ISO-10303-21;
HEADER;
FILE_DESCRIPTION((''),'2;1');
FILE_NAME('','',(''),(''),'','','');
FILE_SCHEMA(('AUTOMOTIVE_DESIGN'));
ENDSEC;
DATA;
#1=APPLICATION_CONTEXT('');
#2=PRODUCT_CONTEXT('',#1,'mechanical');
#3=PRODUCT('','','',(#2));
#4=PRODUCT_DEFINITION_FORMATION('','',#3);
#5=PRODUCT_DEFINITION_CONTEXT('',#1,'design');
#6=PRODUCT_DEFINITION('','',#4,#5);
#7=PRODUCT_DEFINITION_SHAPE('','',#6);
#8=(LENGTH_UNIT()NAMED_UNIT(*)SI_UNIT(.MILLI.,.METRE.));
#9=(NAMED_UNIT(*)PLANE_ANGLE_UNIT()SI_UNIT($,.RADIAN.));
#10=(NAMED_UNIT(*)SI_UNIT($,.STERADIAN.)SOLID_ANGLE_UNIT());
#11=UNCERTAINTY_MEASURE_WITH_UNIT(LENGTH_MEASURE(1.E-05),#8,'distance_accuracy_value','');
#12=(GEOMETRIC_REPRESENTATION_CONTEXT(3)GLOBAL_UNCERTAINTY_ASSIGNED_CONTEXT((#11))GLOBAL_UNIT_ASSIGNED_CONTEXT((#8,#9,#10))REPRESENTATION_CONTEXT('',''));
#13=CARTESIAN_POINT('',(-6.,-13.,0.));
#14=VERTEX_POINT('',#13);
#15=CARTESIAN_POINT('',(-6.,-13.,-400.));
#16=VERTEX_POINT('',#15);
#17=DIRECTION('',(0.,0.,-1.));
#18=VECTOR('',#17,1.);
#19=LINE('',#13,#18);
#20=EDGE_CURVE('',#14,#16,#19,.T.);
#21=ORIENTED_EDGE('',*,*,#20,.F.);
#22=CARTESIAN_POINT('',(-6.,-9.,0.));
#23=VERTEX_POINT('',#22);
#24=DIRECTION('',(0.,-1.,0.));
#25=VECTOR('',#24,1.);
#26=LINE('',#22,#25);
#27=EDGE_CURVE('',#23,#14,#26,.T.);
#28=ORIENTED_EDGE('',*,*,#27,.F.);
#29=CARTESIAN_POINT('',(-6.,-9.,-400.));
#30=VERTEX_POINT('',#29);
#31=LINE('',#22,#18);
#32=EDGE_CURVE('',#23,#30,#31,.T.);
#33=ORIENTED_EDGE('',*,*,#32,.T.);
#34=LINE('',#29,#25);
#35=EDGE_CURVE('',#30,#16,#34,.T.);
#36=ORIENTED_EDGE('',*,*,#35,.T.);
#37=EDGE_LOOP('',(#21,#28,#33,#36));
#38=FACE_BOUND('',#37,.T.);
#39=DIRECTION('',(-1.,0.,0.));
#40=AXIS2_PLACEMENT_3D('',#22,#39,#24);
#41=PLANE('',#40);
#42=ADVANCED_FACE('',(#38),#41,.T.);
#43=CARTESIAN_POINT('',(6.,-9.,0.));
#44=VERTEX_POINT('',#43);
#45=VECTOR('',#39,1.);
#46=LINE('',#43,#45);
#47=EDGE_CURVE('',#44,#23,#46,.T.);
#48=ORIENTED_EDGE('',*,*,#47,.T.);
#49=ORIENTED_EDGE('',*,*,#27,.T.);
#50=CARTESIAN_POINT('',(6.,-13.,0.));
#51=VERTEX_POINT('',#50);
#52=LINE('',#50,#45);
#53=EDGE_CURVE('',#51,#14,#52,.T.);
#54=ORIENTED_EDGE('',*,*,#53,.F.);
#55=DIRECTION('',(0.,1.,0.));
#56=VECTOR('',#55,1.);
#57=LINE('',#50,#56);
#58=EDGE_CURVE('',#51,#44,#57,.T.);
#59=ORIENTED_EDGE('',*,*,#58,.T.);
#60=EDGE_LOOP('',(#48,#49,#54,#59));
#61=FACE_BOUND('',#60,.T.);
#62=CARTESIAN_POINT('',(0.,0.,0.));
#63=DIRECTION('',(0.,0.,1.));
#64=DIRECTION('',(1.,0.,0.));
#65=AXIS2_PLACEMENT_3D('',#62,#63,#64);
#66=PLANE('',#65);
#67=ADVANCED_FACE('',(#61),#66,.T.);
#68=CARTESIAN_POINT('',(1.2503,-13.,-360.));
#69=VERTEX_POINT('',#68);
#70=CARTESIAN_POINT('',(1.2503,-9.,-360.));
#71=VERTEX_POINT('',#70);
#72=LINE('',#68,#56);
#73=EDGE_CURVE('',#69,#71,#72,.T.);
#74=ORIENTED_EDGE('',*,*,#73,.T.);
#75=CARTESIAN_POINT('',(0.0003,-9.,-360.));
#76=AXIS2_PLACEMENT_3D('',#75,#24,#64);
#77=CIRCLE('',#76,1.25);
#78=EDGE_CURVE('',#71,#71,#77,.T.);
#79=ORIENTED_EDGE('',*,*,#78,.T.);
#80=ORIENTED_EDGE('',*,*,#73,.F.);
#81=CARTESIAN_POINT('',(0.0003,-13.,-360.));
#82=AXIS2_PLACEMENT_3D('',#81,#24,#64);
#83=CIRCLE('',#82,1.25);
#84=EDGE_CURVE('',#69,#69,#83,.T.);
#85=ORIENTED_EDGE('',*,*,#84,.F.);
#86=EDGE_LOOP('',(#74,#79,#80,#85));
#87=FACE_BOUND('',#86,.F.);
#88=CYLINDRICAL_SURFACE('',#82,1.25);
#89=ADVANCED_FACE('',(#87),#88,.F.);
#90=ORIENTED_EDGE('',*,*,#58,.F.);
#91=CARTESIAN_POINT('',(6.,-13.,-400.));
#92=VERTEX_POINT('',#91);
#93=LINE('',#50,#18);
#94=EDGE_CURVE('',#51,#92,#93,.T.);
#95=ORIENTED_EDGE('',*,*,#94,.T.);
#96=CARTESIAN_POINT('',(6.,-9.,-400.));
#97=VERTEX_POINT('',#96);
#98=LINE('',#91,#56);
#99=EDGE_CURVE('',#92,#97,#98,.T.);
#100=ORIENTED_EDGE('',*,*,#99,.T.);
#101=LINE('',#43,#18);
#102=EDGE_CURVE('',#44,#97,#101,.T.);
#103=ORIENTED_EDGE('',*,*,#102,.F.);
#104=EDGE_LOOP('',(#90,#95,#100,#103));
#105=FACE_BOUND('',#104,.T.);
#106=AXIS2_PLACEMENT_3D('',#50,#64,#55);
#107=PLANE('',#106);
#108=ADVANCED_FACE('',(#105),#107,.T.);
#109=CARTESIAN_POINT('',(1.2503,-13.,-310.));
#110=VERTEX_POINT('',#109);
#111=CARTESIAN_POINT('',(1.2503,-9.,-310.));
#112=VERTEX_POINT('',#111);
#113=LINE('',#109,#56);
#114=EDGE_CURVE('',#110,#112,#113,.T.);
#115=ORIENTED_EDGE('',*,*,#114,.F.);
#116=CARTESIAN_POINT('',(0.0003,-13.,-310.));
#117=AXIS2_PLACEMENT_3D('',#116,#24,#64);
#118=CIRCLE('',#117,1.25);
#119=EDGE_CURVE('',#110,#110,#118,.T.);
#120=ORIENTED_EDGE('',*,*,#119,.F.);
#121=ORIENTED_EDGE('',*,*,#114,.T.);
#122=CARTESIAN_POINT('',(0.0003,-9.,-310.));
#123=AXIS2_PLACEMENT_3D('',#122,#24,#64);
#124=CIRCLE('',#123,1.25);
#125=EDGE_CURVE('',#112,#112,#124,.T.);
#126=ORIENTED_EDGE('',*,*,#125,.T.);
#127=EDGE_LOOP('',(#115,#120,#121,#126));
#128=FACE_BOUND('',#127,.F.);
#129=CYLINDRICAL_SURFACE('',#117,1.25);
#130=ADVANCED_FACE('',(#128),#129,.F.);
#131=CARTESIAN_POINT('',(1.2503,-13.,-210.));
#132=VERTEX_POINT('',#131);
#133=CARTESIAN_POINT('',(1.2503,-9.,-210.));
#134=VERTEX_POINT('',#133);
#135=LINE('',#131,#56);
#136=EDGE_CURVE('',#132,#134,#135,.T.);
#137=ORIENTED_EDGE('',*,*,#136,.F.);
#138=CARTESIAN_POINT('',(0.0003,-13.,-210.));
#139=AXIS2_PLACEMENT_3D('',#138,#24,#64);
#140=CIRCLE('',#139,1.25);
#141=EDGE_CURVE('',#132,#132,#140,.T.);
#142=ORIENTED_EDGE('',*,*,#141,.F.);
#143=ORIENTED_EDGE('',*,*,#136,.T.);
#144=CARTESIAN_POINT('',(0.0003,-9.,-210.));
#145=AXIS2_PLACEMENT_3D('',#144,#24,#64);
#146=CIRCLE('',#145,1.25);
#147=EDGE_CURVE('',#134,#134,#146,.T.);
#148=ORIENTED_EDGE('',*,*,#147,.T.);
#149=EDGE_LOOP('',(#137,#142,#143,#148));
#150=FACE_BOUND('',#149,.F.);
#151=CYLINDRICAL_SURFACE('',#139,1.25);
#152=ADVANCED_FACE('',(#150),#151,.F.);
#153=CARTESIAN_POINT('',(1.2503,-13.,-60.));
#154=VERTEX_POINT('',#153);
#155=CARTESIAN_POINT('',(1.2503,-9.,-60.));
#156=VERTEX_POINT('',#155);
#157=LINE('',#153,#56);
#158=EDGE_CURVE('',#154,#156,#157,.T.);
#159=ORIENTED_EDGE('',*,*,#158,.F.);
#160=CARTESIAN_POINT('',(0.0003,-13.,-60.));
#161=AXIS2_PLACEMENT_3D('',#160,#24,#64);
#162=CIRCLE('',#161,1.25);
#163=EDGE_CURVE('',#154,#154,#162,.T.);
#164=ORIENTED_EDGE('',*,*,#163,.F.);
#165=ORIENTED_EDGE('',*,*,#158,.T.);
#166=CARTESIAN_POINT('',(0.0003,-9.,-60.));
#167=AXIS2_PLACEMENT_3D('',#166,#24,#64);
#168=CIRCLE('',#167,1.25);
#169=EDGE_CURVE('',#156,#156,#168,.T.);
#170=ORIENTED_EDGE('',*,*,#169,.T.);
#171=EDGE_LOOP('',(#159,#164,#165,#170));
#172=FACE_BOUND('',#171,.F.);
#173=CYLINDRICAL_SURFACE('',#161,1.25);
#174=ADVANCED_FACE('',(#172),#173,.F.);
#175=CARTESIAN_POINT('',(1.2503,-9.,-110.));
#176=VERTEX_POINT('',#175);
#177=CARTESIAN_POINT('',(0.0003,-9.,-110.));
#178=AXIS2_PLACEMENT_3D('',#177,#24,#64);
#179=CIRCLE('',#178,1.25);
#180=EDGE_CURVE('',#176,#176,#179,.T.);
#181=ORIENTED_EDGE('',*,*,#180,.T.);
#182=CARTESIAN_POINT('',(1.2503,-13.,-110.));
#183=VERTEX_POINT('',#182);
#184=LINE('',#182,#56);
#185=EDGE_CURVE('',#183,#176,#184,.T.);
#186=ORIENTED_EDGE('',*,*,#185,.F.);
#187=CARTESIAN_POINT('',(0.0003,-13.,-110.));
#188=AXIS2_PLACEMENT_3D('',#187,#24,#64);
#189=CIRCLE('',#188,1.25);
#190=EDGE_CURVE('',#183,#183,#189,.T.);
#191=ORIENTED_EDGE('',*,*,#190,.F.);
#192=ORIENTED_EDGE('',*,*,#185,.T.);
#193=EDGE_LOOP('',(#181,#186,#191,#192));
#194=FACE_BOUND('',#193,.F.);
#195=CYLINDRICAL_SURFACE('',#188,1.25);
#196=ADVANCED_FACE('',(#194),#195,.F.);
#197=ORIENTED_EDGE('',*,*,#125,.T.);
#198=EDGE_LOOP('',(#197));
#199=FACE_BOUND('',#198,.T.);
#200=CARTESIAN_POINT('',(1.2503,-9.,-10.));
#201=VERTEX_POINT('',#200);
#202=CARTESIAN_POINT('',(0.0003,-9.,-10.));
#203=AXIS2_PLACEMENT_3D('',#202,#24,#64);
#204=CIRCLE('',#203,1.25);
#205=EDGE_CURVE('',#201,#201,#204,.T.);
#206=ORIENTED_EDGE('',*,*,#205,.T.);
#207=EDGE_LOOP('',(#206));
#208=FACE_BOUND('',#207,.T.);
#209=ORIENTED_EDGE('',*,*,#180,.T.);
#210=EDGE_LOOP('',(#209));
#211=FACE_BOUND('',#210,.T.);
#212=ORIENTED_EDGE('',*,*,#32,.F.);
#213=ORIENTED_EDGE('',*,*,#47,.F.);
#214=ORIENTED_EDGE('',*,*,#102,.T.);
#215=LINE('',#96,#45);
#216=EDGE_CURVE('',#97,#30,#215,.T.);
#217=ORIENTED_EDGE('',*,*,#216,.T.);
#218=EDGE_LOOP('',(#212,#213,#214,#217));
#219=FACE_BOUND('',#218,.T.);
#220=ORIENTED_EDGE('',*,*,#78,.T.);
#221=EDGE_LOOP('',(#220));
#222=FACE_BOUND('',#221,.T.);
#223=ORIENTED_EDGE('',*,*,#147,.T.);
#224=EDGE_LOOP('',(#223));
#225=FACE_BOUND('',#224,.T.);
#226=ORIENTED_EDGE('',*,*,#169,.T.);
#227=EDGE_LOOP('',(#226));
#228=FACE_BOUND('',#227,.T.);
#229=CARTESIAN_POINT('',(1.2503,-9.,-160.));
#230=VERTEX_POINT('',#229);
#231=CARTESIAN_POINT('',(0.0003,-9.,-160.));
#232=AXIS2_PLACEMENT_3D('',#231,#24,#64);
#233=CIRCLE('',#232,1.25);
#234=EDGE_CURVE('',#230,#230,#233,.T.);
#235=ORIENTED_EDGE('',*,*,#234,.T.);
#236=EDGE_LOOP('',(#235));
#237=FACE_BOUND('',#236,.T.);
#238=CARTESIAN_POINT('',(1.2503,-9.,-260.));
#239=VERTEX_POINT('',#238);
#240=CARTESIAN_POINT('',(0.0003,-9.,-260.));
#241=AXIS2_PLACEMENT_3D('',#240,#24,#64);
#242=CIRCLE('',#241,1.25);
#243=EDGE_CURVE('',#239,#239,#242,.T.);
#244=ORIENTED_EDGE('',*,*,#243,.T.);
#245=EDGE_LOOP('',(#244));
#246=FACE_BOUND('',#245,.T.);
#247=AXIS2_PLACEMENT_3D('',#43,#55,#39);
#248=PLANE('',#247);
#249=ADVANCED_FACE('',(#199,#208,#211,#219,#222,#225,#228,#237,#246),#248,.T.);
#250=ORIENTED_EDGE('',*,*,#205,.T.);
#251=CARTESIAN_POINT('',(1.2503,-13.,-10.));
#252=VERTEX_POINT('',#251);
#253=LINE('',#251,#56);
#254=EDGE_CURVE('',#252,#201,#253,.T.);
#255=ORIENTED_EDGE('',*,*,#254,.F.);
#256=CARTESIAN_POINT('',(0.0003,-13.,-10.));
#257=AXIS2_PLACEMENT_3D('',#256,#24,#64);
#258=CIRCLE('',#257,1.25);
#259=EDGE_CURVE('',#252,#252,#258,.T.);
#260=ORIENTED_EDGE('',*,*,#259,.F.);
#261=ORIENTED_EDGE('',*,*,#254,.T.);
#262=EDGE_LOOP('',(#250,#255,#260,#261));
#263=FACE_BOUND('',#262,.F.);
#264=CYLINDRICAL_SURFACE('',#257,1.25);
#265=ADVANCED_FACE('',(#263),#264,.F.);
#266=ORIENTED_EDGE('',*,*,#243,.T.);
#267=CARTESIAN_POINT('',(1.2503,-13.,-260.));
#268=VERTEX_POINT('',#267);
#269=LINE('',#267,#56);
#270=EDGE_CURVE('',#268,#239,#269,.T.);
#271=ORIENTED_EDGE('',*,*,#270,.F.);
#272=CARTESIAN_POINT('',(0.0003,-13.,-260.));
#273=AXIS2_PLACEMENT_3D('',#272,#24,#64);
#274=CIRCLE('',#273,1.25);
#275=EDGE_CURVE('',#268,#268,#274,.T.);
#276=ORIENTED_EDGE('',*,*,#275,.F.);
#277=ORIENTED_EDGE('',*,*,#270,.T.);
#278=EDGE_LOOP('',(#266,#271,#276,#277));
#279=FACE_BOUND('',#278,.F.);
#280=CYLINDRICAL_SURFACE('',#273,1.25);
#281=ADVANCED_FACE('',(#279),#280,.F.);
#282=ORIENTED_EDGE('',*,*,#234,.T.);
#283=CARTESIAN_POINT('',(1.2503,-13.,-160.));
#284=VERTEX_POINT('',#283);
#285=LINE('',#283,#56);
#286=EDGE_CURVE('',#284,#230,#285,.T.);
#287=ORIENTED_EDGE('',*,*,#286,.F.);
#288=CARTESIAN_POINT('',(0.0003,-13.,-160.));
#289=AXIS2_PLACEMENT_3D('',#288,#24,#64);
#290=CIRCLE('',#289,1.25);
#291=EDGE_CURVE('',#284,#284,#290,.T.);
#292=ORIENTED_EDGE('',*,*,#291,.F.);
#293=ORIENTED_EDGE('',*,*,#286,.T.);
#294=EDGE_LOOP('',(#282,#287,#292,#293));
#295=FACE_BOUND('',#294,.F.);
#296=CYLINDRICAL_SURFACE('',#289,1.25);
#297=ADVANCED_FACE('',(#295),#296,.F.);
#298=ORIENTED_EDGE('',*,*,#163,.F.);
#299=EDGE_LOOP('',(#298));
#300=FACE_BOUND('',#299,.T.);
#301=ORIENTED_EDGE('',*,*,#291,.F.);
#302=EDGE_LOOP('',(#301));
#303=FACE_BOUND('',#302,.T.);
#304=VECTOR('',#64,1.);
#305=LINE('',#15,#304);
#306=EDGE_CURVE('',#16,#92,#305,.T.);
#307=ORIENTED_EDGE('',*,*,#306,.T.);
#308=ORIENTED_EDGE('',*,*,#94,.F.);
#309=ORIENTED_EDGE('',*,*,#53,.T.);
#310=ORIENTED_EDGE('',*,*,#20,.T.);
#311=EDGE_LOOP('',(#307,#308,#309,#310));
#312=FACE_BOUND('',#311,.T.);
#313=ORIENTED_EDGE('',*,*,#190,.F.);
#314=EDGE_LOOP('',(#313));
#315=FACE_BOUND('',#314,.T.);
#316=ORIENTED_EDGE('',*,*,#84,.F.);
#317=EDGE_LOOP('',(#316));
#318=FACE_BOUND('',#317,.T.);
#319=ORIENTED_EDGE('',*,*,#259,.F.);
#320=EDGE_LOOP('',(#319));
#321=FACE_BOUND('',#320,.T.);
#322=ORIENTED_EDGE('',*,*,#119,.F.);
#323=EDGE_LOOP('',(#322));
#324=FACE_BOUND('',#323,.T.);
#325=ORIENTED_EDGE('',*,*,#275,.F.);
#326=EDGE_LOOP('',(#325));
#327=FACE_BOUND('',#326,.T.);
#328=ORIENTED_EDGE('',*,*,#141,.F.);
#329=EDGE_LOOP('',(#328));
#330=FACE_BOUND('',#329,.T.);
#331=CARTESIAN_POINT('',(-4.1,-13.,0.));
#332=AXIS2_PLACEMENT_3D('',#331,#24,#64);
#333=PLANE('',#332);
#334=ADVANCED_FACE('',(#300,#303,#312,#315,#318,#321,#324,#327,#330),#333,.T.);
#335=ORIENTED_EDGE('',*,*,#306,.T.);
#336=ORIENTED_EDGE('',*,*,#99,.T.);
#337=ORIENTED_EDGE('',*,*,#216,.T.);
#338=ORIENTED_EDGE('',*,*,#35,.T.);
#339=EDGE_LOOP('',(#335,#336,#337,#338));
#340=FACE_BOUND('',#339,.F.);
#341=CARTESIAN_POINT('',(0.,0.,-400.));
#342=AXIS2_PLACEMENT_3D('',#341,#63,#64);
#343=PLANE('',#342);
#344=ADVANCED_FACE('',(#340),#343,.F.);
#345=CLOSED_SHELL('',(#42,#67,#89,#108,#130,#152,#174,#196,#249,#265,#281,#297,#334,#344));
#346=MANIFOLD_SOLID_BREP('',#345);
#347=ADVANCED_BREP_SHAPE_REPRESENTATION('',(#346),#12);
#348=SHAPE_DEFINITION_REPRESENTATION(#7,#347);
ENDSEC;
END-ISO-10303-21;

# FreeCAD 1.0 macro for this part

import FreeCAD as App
import Part
import Sketcher
Q = App.Units.Quantity


def add_polygon(sketch, points):
    """Adds a closed chain of lines whose ends are joined by coincident constraints."""
    first, n = sketch.GeometryCount, len(points)
    for a, b in zip(points, points[1:] + points[:1]):
        sketch.addGeometry(Part.LineSegment(App.Vector(*a, 0), App.Vector(*b, 0)), False)
    for i in range(n):
        sketch.addConstraint(Sketcher.Constraint("Coincident", first + i, 2, first + (i + 1) % n, 1))

doc = App.newDocument("Part")
body = doc.addObject("PartDesign::Body", "Body")

# Sketch on XY plane
sketch1 = body.newObject("Sketcher::SketchObject", "Sketch")
sketch1.AttachmentSupport = (doc.getObject("XY_Plane"), [""])
sketch1.MapMode = "FlatFace"
add_polygon(sketch1, [(-6, -13), (6, -13), (6, -9), (-6, -9)])  # lines 0-3
sketch1.addConstraint([
    Sketcher.Constraint("Horizontal", 0),
    Sketcher.Constraint("Vertical", 1),
    Sketcher.Constraint("Horizontal", 2),
    Sketcher.Constraint("Vertical", 3),
    Sketcher.Constraint("DistanceX", 0, 1, 0, 2, Q("12 mm")),
    Sketcher.Constraint("DistanceY", 1, 1, 1, 2, Q("4 mm")),
    Sketcher.Constraint("DistanceX", -1, 1, 0, 2, Q("6 mm")),
    Sketcher.Constraint("DistanceY", 0, 2, -1, 1, Q("13 mm")),
])
pad1 = body.newObject("PartDesign::Pad", "Pad")
pad1.Profile = sketch1
pad1.Length = 400
pad1.Reversed = True

# Sketch on XZ plane
sketch2 = body.newObject("Sketcher::SketchObject", "Sketch001")
sketch2.AttachmentSupport = (doc.getObject("XZ_Plane"), [""])
sketch2.MapMode = "FlatFace"
sketch2.AttachmentOffset = App.Placement(App.Vector(0, 0, 13), App.Rotation())
sketch2.addGeometry(Part.Circle(App.Vector(0, -10, 0), App.Vector(0, 0, 1), 1.2), False)
sketch2.addConstraint([
    Sketcher.Constraint("Diameter", 0, Q("2.5 mm")),
    Sketcher.Constraint("DistanceY", 0, 3, -1, 1, Q("10 mm")),
    Sketcher.Constraint("DistanceX", -1, 1, 0, 3, Q("0.0003 mm")),
])
pocket1 = body.newObject("PartDesign::Pocket", "Pocket")
pocket1.Profile = sketch2
pocket1.Length = 400
doc.recompute()

linearpattern = body.newObject("PartDesign::LinearPattern", "LinearPattern")
linearpattern.Originals = [pocket1]
linearpattern.Direction = (doc.getObject("Z_Axis"), [""])
linearpattern.Mode = "offset"
linearpattern.Offset = 50
linearpattern.Occurrences = 8
linearpattern.Reversed = True
body.Tip = linearpattern

doc.recompute()
